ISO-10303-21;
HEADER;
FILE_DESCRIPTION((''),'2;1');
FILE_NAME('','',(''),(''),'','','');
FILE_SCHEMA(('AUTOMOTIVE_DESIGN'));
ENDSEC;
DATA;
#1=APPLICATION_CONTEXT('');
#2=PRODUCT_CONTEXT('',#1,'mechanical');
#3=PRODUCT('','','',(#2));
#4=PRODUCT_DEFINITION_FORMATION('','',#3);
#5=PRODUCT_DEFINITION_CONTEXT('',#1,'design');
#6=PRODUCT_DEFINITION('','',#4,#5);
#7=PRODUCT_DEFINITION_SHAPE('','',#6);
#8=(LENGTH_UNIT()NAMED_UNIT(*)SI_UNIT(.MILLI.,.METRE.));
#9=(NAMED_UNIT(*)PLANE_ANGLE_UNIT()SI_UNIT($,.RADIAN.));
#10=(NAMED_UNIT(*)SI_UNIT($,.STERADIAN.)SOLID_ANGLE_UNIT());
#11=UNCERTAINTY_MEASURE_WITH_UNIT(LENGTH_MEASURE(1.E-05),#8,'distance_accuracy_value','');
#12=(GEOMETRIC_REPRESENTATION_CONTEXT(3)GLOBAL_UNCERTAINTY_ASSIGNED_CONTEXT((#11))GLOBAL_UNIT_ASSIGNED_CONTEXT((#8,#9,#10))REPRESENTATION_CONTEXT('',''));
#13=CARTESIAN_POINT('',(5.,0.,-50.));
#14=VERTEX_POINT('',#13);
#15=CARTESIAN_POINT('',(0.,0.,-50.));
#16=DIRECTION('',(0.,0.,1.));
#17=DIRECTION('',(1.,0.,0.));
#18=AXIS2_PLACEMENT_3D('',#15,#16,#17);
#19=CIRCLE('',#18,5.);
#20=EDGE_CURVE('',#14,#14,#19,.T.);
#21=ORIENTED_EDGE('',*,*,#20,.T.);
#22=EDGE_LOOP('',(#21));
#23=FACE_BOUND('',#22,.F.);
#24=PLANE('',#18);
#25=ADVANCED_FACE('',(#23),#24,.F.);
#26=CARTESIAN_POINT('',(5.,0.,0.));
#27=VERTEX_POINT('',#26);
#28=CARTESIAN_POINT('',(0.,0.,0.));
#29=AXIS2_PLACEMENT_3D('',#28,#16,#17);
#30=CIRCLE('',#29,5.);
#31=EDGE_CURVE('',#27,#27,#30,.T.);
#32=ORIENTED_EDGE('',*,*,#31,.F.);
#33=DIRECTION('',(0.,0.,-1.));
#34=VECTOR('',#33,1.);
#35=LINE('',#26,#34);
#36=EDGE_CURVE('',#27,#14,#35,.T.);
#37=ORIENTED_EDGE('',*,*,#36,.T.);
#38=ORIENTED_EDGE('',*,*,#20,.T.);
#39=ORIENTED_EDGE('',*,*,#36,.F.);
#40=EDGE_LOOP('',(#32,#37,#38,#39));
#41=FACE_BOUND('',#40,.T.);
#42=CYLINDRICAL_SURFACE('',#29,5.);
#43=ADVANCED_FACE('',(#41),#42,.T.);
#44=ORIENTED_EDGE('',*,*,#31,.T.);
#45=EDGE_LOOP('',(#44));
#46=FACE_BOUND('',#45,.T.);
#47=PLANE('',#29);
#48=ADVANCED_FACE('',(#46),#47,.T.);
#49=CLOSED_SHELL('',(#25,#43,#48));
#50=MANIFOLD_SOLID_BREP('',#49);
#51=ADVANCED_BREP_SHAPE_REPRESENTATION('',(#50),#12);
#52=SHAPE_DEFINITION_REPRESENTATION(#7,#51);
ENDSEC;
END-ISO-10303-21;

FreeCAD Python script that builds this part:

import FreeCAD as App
import Part
import Sketcher

doc = App.newDocument("Part")
body = doc.addObject("PartDesign::Body", "Body")

sketch1 = doc.addObject("Sketcher::SketchObject", "Sketch")
body.addObject(sketch1)
sketch1.AttachmentSupport = (doc.XY_Plane, [""])
sketch1.MapMode = "FlatFace"
sketch1.addGeometry(Part.Circle(App.Vector(0, 0, 0), App.Vector(0, 0, 1), 5), False)
sketch1.addConstraint(Sketcher.Constraint("Coincident", 0, 3, -1, 1))
sketch1.addConstraint(Sketcher.Constraint("Diameter", 0, 10.0))
pad1 = doc.addObject("PartDesign::Pad", "Pad")
body.addObject(pad1)
pad1.Profile = sketch1
pad1.Length = 50
pad1.Reversed = True

doc.recompute()
